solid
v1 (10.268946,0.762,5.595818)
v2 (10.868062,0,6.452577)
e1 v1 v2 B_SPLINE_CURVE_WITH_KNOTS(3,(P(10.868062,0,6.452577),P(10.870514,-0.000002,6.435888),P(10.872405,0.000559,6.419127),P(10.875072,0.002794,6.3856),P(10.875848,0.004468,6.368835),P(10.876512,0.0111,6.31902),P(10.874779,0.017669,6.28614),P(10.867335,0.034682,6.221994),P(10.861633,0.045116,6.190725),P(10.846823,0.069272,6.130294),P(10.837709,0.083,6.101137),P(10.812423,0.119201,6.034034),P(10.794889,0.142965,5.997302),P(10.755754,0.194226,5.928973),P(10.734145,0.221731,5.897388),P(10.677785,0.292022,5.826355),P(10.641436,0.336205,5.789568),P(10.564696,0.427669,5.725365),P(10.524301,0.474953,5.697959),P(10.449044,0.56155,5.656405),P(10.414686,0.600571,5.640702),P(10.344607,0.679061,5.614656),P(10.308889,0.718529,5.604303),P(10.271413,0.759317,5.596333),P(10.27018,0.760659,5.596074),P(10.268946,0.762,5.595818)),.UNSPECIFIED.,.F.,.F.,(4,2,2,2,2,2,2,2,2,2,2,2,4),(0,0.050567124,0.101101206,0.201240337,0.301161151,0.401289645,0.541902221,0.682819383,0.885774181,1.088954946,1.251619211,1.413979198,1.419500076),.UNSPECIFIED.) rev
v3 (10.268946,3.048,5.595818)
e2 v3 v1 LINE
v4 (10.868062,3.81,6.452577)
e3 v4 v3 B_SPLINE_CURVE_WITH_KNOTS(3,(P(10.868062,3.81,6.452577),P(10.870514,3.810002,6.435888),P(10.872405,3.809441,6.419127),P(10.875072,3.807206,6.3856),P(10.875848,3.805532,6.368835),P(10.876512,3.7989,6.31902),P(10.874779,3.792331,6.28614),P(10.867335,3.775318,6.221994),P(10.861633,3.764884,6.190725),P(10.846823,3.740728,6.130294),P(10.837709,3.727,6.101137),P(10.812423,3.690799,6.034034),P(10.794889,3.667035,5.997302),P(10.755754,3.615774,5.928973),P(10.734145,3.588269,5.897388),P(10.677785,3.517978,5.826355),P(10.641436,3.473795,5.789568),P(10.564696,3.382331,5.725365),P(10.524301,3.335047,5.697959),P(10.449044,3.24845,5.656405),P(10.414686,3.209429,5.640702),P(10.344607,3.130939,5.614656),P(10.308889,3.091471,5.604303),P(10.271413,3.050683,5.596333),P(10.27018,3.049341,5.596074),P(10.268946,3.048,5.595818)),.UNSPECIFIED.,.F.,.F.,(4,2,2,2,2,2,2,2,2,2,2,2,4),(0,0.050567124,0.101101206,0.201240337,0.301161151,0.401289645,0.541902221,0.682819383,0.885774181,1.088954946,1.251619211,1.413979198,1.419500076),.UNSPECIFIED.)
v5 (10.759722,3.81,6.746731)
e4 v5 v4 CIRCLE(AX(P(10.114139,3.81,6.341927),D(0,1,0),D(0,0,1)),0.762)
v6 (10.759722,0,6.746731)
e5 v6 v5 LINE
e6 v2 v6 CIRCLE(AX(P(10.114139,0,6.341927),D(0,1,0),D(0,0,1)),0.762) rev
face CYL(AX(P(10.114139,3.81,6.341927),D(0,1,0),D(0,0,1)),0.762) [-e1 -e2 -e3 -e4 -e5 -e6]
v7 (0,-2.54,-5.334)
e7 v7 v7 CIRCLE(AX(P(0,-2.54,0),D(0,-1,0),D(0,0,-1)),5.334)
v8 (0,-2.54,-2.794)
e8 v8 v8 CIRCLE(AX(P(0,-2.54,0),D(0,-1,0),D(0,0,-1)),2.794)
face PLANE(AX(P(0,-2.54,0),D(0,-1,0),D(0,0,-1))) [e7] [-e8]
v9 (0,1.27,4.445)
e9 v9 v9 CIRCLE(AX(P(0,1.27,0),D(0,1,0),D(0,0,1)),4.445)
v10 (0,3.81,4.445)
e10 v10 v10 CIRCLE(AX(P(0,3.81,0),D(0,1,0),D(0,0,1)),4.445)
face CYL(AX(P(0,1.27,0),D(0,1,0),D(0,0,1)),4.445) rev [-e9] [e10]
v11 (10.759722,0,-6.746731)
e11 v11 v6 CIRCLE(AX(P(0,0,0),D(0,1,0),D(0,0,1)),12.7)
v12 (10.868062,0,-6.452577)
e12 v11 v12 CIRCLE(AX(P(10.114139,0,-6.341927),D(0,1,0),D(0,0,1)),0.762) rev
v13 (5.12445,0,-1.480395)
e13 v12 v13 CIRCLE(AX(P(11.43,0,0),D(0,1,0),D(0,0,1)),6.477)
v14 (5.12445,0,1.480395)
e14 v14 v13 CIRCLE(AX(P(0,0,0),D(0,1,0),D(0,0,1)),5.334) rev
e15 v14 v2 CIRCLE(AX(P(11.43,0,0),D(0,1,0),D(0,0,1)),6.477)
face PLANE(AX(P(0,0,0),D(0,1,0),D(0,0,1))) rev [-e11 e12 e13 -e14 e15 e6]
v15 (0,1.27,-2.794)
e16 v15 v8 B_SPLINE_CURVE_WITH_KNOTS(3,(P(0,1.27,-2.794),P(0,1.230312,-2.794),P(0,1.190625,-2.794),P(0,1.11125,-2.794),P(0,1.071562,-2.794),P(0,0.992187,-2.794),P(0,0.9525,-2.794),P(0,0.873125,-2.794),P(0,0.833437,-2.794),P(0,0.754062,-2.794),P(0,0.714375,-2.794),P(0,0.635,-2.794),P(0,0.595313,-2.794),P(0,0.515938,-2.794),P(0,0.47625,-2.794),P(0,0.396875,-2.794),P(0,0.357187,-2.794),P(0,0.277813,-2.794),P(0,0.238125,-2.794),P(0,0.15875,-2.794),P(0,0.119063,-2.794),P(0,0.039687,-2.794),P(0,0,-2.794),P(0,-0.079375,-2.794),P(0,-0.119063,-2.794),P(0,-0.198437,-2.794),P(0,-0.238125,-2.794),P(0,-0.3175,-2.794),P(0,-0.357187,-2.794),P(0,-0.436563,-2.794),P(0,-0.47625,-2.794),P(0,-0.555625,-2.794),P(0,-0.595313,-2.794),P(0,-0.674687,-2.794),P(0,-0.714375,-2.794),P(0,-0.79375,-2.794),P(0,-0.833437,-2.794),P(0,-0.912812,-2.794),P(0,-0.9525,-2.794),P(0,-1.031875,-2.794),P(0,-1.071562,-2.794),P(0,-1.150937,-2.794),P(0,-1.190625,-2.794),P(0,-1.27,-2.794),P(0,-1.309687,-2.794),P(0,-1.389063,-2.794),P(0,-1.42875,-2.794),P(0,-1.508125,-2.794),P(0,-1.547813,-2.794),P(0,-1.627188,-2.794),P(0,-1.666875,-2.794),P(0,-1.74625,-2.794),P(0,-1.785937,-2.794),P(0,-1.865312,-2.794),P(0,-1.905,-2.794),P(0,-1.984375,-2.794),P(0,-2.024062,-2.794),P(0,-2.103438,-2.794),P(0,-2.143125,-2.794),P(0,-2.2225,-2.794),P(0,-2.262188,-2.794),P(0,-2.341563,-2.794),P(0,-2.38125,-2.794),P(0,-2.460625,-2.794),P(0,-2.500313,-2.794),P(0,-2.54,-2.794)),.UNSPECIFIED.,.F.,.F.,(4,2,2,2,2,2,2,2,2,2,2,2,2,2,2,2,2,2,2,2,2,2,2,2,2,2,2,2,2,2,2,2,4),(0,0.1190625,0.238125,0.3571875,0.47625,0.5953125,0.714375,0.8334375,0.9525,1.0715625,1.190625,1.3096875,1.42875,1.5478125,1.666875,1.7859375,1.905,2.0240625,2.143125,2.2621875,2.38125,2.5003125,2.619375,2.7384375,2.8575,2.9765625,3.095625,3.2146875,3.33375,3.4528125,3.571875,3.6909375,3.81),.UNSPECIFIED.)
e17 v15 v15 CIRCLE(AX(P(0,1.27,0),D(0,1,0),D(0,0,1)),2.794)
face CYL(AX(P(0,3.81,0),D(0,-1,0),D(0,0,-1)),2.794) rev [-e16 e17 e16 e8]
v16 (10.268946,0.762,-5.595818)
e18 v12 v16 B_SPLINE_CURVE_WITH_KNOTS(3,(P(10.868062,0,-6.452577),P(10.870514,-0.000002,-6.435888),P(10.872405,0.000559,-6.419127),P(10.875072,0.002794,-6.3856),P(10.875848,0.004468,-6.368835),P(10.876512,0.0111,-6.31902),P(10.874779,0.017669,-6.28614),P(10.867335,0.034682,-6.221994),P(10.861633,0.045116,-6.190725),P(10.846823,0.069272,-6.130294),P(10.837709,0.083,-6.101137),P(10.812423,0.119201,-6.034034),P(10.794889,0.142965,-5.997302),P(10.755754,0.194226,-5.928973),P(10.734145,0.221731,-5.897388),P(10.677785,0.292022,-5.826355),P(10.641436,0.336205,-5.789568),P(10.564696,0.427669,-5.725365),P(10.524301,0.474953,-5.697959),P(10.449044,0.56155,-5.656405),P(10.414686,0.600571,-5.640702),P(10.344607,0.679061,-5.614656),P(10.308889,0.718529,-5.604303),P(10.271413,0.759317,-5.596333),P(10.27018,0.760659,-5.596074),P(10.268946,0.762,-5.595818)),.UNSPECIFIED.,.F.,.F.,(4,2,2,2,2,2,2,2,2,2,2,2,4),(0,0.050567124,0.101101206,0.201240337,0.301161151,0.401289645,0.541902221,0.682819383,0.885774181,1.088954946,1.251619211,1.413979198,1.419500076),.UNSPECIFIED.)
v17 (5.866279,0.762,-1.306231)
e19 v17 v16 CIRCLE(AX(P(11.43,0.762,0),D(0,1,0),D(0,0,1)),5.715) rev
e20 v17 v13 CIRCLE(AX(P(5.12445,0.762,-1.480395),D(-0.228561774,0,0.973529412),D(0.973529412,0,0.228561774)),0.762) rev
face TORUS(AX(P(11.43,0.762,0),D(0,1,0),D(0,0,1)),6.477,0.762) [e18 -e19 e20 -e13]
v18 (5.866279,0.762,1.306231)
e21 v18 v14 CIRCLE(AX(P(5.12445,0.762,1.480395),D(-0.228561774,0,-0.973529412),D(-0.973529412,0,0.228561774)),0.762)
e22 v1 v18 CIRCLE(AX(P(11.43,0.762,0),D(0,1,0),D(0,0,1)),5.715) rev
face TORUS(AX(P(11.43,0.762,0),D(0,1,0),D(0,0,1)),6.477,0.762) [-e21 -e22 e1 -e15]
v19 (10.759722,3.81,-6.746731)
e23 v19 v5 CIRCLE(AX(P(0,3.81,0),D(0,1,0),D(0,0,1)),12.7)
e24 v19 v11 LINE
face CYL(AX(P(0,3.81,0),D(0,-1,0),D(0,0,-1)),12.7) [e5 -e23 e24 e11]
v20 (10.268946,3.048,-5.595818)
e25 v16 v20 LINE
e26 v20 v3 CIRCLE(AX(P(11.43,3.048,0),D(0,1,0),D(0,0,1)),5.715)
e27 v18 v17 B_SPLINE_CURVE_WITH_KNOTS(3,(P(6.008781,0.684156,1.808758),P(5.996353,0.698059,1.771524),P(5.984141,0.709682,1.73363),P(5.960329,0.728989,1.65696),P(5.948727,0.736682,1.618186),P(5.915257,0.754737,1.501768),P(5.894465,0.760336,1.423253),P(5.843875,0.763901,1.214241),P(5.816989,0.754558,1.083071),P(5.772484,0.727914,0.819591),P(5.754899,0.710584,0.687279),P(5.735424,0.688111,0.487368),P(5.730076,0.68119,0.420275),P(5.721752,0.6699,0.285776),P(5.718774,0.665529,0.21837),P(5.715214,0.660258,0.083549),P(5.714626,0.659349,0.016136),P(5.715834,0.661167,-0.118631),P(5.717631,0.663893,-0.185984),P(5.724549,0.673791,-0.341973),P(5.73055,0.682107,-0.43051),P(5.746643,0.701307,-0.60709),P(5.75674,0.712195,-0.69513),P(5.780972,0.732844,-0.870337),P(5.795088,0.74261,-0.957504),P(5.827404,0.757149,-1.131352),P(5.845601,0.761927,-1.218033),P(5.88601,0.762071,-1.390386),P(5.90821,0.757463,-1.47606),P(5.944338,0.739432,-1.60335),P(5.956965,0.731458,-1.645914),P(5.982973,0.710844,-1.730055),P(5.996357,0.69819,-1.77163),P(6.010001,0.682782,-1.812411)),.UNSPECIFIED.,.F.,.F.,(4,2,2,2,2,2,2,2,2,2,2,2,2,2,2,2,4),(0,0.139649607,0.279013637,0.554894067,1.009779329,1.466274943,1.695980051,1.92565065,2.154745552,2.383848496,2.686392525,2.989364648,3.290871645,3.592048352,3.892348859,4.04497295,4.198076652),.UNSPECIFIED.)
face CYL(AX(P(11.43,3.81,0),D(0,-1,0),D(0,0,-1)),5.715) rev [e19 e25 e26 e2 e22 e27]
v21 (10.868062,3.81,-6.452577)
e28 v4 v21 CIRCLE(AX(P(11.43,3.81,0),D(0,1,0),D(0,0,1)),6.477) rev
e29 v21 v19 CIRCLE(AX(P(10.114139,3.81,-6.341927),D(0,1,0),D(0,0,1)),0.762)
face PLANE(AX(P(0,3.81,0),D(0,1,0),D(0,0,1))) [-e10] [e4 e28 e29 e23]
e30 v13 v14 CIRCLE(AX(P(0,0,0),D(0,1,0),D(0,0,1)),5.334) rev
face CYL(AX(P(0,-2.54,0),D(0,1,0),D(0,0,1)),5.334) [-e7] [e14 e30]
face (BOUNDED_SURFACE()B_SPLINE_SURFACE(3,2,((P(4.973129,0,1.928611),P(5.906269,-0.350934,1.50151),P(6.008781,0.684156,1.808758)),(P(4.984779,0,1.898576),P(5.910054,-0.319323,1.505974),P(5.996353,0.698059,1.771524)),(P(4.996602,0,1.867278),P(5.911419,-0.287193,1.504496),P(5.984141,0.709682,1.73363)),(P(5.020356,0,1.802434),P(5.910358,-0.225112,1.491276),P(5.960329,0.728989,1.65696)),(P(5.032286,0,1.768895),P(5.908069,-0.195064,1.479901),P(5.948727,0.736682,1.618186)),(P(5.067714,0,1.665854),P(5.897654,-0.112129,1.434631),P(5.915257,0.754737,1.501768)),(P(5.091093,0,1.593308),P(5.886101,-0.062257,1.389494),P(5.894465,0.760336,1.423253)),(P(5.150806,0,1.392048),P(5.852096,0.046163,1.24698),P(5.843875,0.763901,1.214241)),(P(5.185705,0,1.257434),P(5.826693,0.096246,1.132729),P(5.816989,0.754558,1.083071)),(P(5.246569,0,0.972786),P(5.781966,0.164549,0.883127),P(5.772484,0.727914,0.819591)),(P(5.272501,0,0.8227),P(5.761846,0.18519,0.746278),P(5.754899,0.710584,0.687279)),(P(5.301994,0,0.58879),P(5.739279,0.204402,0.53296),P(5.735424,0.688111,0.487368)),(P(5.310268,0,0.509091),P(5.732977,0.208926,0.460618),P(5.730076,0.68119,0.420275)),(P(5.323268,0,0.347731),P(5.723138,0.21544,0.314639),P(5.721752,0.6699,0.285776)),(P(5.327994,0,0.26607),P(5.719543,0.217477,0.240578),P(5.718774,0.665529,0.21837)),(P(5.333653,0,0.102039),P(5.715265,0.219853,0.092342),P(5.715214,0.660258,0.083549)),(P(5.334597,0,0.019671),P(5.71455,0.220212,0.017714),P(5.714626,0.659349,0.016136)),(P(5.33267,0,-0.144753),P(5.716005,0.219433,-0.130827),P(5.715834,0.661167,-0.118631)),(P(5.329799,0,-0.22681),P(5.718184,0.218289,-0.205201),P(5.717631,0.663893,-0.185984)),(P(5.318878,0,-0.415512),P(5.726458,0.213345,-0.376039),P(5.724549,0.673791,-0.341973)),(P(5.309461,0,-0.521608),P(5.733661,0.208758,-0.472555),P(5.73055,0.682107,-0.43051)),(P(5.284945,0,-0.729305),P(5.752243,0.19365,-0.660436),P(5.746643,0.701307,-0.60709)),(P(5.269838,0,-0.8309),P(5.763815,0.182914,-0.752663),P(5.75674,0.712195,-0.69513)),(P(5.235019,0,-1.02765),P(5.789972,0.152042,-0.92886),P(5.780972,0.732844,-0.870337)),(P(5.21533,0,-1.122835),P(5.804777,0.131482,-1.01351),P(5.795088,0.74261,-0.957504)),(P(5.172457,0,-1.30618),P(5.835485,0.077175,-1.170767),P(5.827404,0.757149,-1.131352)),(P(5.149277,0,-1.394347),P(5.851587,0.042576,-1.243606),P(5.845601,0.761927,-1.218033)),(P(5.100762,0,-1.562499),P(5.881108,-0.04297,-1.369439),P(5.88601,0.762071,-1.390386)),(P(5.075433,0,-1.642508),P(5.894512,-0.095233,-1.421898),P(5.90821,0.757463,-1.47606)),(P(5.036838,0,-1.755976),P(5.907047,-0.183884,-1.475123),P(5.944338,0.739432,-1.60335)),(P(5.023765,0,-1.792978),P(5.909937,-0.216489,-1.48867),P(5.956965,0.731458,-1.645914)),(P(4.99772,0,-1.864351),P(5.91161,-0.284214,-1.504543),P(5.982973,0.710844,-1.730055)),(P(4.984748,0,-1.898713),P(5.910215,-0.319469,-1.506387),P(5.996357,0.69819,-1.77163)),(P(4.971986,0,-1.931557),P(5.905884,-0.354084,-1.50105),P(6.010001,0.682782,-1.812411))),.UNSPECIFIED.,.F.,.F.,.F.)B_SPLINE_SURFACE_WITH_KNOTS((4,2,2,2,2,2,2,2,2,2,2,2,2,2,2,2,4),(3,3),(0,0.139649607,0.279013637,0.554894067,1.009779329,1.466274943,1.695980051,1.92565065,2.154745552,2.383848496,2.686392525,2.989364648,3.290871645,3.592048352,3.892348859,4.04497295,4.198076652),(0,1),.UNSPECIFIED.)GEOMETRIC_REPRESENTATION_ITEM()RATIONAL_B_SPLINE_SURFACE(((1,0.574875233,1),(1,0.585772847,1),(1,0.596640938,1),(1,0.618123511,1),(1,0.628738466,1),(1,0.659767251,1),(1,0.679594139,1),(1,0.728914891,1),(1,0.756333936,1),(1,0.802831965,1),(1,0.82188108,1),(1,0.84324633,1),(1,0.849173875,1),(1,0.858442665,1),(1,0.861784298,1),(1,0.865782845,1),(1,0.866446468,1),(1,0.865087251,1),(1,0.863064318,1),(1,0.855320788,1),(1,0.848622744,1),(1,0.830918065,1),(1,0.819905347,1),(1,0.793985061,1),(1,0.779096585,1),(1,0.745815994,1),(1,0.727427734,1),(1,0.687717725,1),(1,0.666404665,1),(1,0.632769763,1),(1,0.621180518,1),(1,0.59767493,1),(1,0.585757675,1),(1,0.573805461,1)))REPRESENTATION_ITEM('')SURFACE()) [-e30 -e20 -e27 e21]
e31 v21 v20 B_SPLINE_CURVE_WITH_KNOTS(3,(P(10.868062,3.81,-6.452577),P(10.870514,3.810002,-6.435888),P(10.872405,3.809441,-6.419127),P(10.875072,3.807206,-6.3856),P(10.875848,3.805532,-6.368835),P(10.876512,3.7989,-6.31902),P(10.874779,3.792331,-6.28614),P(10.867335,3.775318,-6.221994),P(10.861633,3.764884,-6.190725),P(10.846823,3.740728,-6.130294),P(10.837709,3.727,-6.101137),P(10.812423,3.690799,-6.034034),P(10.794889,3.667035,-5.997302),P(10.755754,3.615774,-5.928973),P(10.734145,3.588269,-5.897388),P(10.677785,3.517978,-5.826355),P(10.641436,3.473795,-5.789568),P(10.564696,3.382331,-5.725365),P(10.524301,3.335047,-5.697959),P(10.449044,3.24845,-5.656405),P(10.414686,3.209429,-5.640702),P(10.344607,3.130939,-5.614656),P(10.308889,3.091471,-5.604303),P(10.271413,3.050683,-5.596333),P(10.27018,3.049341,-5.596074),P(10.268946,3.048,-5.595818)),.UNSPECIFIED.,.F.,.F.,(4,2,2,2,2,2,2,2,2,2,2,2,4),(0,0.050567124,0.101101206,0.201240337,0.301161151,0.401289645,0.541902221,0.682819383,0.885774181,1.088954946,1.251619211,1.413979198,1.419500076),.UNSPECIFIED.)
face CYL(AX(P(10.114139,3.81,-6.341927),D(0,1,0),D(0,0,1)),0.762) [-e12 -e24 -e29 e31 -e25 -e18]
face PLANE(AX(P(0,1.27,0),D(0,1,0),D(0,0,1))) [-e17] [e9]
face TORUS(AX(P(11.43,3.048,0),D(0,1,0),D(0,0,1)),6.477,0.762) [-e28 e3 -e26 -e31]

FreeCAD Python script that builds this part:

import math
import FreeCAD as App
import Part
import Sketcher

V = App.Vector
Q = App.Units.Quantity


def edges_at(feature, points):
    """Names of the edges that pass closest to the given points."""
    edges = feature.Shape.Edges
    near = lambda p: min(range(len(edges)), key=lambda i: edges[i].distToShape(Part.Vertex(*p))[0])
    return sorted({f"Edge{near(p) + 1}" for p in points})

doc = App.newDocument("Part")
params = doc.addObject("Spreadsheet::Sheet", "Params")
for row, (alias, value) in enumerate([
    ("sketch1_radius", "0.5 in"),
    ("sketch1_diameter", "0.22 in"),
    ("sketch1_radius2", "0.225 in"),
    ("pad1_length", "0.15 in"),
    ("sketch2_diameter", "0.35 in"),
    ("pocket1_length", "0.1 in"),
    ("sketch3_diameter", "0.42 in"),
    ("sketch3_diameter2", "0.22 in"),
    ("pad2_length", "0.1 in"),
    ("fillet_radius", "0.03 in"),
], start=1):
    params.set(f"A{row}", alias)
    params.set(f"B{row}", "=" + value)
    params.setAlias(f"B{row}", alias)

body = doc.addObject("PartDesign::Body", "Body")

# Sketch on XZ plane
sketch1 = body.newObject("Sketcher::SketchObject", "Sketch")
sketch1.AttachmentSupport = (doc.getObject("XZ_Plane"), [""])
sketch1.MapMode = "FlatFace"
sketch1.addGeometry([
    Part.ArcOfCircle(Part.Circle(V(11.4, 0, 0), V(0, 0, 1), 5.7), math.radians(91), math.radians(269)),
    Part.ArcOfCircle(Part.Circle(V(0, 0, 0), V(0, 0, 1), 12.7), math.radians(27), math.radians(333)),
    Part.Circle(V(0, 0, 0), V(0, 0, 1), 2.8),
], False)
sketch1.addConstraint([
    Sketcher.Constraint("Coincident", 0, 1, 1, 1),
    Sketcher.Constraint("Coincident", 1, 2, 0, 2),
    Sketcher.Constraint("Coincident", 1, 3, -1, 1),
    Sketcher.Constraint("Coincident", 2, 3, -1, 1),
    Sketcher.Constraint("PointOnObject", 0, 3, -1),
    Sketcher.Constraint("Radius", 1, Q("0.5 in")),
    Sketcher.Constraint("Diameter", 2, Q("0.22 in")),
    Sketcher.Constraint("Radius", 0, Q("0.225 in")),
    Sketcher.Constraint("DistanceX", -1, 1, 0, 3, Q("0.45 in")),
])
sketch1.setExpression("Constraints[5]", "Params.sketch1_radius")
sketch1.setExpression("Constraints[6]", "Params.sketch1_diameter")
sketch1.setExpression("Constraints[7]", "Params.sketch1_radius2")
pad1 = body.newObject("PartDesign::Pad", "Pad")
pad1.Profile = sketch1
pad1.setExpression("Length", "Params.pad1_length")
pad1.Reversed = True

# Sketch on XZ plane
sketch2 = body.newObject("Sketcher::SketchObject", "Sketch001")
sketch2.AttachmentSupport = (doc.getObject("XZ_Plane"), [""])
sketch2.MapMode = "FlatFace"
sketch2.AttachmentOffset = App.Placement(V(0, 0, -0.15 * 25.4), App.Rotation())
sketch2.addGeometry(Part.Circle(V(0, 0, 0), V(0, 0, 1), 4.4), False)
sketch2.addConstraint([
    Sketcher.Constraint("Coincident", 0, 3, -1, 1),
    Sketcher.Constraint("Diameter", 0, Q("0.35 in")),
])
sketch2.setExpression("Constraints[1]", "Params.sketch2_diameter")
pocket1 = body.newObject("PartDesign::Pocket", "Pocket")
pocket1.Profile = sketch2
pocket1.setExpression("Length", "Params.pocket1_length")
pocket1.Reversed = True

# Sketch on XZ plane
sketch3 = body.newObject("Sketcher::SketchObject", "Sketch002")
sketch3.AttachmentSupport = (doc.getObject("XZ_Plane"), [""])
sketch3.MapMode = "FlatFace"
sketch3.AttachmentOffset = App.Placement(V(0, 0, 0.1 * 25.4), App.Rotation())
sketch3.addGeometry([
    Part.Circle(V(0, 0, 0), V(0, 0, 1), 5.3),
    Part.Circle(V(0, 0, 0), V(0, 0, 1), 2.8),
], False)
sketch3.addConstraint([
    Sketcher.Constraint("Coincident", 0, 3, -1, 1),
    Sketcher.Constraint("Coincident", 1, 3, -1, 1),
    Sketcher.Constraint("Diameter", 0, Q("0.42 in")),
    Sketcher.Constraint("Diameter", 1, Q("0.22 in")),
])
sketch3.setExpression("Constraints[2]", "Params.sketch3_diameter")
sketch3.setExpression("Constraints[3]", "Params.sketch3_diameter2")
pad2 = body.newObject("PartDesign::Pad", "Pad001")
pad2.Profile = sketch3
pad2.setExpression("Length", "Params.pad2_length")
pad2.Reversed = True
doc.recompute()

fillet = body.newObject("PartDesign::Fillet", "Fillet")
fillet.Base = (pad2, edges_at(pad2, [
    (5.715, 3.81, 0),
    (5.715, 0, 0),
    (11.342, 1.905, 5.714),
    (11.342, 1.905, -5.714),
]))
fillet.setExpression("Radius", "Params.fillet_radius")

doc.recompute()
